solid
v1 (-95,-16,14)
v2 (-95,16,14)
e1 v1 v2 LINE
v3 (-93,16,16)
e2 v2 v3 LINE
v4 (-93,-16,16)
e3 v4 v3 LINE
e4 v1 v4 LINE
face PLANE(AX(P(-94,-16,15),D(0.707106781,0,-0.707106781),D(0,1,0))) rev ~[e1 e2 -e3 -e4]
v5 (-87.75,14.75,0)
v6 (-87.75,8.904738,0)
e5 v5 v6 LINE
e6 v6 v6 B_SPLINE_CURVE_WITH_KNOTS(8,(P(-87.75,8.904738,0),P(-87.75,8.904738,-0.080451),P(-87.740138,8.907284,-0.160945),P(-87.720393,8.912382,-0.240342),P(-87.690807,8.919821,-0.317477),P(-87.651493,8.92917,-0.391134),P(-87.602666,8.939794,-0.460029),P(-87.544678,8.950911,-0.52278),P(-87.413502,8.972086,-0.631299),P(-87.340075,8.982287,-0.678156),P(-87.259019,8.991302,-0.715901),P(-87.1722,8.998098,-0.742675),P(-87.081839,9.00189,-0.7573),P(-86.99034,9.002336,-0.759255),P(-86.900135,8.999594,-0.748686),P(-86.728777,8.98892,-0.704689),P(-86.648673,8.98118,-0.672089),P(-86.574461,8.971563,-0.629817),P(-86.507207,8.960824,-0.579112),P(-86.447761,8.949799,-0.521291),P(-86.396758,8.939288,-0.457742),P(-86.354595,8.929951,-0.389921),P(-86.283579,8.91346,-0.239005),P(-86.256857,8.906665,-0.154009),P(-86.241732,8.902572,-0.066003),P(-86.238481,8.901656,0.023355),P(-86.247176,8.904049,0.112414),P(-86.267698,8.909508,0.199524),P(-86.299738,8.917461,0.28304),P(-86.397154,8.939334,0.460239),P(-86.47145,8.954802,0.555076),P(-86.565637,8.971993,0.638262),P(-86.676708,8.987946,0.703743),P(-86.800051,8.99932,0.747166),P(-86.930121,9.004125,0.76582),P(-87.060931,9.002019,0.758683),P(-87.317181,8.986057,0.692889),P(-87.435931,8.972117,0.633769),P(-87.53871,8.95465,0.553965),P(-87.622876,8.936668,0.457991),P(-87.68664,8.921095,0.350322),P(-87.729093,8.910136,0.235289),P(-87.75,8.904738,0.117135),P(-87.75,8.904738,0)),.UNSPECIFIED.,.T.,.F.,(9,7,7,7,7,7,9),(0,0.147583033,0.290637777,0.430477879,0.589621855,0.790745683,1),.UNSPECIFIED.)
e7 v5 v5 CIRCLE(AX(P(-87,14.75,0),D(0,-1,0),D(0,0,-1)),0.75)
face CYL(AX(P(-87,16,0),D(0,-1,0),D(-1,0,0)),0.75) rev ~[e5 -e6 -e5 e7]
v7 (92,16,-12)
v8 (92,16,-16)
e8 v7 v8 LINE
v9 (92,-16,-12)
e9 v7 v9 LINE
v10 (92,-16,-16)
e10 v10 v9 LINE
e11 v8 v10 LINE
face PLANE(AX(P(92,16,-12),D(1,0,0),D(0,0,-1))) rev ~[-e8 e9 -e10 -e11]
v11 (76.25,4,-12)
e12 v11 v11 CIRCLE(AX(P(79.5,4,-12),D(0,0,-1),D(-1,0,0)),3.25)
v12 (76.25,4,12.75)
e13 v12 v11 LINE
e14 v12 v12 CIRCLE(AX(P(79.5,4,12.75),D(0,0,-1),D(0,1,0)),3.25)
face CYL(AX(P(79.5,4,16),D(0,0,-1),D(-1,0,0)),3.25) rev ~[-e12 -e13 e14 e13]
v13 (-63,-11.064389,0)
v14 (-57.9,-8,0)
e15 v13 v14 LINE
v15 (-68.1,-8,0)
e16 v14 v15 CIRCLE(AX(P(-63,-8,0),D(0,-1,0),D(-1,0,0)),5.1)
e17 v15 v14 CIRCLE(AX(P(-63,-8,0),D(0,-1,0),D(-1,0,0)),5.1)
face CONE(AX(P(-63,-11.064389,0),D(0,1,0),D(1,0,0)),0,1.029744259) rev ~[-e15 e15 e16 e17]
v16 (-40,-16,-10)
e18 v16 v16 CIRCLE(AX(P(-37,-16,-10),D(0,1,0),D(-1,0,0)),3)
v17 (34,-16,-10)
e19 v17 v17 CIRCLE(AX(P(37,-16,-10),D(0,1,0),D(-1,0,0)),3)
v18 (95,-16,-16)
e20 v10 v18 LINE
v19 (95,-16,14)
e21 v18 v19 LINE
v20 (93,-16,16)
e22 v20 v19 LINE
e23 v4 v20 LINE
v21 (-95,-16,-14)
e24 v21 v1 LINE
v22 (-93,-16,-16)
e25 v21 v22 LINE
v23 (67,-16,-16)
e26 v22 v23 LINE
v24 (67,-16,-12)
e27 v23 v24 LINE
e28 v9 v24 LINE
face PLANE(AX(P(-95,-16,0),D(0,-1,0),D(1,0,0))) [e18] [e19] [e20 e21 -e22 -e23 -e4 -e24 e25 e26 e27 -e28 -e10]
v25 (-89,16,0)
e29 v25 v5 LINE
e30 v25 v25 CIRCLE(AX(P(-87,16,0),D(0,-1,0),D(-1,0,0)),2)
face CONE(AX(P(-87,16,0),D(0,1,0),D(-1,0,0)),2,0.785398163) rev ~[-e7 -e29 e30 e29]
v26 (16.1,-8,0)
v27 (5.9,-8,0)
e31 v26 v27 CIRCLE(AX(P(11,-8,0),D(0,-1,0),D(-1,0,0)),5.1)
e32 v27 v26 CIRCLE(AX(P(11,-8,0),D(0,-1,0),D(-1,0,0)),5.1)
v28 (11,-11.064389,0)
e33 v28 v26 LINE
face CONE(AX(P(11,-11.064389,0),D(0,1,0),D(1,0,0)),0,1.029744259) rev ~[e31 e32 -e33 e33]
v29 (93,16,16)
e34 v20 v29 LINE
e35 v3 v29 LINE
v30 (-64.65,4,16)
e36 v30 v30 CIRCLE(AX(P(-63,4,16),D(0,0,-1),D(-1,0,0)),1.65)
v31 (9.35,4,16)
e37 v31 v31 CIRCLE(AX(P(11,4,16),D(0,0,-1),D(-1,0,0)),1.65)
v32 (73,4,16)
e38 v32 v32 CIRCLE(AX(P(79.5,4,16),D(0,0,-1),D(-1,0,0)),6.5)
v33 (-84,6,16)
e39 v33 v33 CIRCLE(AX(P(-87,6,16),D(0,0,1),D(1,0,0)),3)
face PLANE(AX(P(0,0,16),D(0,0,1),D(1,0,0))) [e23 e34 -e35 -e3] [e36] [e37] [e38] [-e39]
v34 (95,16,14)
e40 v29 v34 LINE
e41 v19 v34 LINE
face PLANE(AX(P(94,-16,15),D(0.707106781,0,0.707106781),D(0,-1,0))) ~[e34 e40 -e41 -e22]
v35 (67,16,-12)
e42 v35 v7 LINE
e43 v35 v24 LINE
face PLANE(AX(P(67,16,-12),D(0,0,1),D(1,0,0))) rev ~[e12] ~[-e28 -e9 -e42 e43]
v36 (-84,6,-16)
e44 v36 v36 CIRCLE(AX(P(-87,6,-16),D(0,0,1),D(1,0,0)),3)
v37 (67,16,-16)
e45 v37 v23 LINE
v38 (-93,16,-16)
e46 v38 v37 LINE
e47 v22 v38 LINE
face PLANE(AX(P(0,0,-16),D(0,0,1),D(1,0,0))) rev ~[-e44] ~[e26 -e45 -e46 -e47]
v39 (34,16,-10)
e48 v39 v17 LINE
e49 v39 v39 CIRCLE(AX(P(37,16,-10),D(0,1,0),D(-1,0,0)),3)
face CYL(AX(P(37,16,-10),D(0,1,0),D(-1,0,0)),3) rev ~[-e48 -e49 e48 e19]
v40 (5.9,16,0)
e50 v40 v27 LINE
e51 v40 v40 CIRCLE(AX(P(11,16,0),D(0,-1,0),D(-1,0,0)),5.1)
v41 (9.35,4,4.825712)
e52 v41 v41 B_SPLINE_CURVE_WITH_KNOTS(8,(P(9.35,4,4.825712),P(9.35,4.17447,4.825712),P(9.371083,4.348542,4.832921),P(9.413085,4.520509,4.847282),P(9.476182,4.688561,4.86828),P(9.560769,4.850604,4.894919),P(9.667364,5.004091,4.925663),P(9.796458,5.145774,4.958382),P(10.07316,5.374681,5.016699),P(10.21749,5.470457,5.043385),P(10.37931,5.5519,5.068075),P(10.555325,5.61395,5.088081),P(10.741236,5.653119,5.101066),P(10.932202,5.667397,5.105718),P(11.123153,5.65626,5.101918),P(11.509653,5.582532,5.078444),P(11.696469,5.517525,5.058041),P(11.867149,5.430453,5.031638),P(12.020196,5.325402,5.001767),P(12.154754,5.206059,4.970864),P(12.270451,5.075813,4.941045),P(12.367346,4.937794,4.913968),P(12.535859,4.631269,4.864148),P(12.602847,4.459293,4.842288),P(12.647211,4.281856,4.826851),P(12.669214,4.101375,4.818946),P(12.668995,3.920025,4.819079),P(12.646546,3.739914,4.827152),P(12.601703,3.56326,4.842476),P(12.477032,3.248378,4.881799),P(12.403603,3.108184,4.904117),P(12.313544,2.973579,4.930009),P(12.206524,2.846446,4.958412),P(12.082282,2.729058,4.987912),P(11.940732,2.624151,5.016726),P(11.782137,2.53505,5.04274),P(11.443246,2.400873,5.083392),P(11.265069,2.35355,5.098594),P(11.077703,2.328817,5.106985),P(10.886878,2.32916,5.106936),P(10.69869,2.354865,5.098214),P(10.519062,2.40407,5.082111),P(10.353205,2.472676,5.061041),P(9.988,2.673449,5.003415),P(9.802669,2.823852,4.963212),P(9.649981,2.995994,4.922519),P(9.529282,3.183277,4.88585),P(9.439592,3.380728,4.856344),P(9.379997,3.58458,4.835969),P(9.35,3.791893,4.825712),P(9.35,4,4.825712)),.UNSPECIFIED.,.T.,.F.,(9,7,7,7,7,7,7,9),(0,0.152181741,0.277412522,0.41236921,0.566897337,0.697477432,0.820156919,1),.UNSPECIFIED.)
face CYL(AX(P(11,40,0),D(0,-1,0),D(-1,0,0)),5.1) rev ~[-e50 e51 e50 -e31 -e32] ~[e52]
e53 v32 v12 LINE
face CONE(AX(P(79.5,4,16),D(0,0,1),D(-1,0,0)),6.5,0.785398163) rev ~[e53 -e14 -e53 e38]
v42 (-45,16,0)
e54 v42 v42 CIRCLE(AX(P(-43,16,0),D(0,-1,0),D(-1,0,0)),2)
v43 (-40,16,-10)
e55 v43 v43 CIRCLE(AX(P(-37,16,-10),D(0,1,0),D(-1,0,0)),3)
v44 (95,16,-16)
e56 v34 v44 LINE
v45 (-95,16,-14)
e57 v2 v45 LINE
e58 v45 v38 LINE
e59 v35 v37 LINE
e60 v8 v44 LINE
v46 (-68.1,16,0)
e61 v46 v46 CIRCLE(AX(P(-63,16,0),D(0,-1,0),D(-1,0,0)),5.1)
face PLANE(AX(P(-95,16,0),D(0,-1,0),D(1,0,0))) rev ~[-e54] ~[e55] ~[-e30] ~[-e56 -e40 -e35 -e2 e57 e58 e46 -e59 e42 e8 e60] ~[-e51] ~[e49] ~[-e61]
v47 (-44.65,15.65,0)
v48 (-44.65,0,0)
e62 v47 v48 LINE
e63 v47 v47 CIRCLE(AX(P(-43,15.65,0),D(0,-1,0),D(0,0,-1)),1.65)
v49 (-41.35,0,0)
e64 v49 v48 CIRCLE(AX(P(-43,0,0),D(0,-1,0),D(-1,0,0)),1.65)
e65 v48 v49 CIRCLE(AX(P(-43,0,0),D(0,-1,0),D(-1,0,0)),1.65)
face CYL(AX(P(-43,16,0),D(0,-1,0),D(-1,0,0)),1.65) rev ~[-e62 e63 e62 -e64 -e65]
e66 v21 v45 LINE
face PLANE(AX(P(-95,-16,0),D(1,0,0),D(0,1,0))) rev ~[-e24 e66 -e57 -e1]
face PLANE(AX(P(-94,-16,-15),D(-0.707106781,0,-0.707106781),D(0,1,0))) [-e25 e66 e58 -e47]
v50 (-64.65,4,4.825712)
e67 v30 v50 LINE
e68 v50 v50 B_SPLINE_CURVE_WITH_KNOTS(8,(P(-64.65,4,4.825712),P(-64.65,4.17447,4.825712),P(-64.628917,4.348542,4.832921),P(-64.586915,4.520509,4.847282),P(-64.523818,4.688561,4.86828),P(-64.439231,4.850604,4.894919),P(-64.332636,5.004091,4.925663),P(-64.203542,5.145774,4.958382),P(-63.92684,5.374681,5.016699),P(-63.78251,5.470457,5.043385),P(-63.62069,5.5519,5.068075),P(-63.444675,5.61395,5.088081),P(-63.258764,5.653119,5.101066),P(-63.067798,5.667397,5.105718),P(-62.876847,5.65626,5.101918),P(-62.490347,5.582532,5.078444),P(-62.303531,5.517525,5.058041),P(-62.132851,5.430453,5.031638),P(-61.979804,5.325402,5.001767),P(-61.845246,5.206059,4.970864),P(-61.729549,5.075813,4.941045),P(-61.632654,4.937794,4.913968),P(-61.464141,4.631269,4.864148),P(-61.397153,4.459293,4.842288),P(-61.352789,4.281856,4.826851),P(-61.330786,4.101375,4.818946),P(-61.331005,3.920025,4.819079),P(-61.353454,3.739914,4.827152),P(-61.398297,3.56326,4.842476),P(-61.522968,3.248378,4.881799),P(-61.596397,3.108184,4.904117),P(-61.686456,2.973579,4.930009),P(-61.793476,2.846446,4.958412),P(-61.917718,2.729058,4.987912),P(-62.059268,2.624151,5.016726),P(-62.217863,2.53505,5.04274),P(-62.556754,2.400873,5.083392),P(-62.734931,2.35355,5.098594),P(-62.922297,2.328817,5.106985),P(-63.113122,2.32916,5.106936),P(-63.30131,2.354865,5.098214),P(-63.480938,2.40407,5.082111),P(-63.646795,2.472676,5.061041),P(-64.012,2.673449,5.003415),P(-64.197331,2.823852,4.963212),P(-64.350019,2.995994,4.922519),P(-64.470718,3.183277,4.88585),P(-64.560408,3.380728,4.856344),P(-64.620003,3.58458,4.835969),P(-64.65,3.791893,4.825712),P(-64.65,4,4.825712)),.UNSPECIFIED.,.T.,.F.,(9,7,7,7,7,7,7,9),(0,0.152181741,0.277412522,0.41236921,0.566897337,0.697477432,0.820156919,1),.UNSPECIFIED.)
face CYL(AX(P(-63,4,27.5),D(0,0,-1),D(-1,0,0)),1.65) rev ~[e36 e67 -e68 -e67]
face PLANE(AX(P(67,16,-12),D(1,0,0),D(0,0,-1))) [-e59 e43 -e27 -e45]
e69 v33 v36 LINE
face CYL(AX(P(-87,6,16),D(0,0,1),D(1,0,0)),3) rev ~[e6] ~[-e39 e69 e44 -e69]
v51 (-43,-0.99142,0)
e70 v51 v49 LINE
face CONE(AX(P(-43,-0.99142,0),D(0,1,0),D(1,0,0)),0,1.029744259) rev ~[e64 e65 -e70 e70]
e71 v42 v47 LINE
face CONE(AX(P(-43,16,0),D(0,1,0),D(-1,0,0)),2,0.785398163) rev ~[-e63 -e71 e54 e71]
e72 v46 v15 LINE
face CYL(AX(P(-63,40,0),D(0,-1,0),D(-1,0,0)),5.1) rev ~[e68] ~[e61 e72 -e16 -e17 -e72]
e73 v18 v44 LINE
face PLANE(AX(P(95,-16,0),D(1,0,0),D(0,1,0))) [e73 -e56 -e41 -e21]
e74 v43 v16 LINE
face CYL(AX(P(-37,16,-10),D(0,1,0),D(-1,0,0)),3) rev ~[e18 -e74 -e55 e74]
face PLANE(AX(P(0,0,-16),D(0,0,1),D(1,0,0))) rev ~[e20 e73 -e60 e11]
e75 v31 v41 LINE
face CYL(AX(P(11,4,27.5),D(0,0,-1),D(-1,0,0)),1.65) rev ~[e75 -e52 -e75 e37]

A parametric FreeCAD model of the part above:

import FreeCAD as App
import Part
import Sketcher

V = App.Vector


def edges_at(feature, points):
    """Names of the edges that pass closest to the given points."""
    edges = feature.Shape.Edges
    near = lambda p: min(range(len(edges)), key=lambda i: edges[i].distToShape(Part.Vertex(*p))[0])
    return sorted({f"Edge{near(p) + 1}" for p in points})

doc = App.newDocument("Part")
body = doc.addObject("PartDesign::Body", "Body")

sketch1 = doc.addObject("Sketcher::SketchObject", "Sketch")
body.addObject(sketch1)
sketch1.AttachmentSupport = (doc.XY_Plane, [""])
sketch1.MapMode = "FlatFace"
sketch1.addGeometry([
    Part.LineSegment(V(-95, 16, 0), V(-95, -16, 0)),
    Part.LineSegment(V(-95, -16, 0), V(95, -16, 0)),
    Part.LineSegment(V(95, -16, 0), V(95, 16, 0)),
    Part.LineSegment(V(95, 16, 0), V(-95, 16, 0)),
], False)
sketch1.addConstraint([
    Sketcher.Constraint("Coincident", 0, 2, 1, 1),
    Sketcher.Constraint("Coincident", 1, 2, 2, 1),
    Sketcher.Constraint("Coincident", 2, 2, 3, 1),
    Sketcher.Constraint("Coincident", 3, 2, 0, 1),
    Sketcher.Constraint("Vertical", 0),
    Sketcher.Constraint("Horizontal", 1),
    Sketcher.Constraint("Vertical", 2),
    Sketcher.Constraint("Horizontal", 3),
    Sketcher.Constraint("Symmetric", 0, 2, 2, 2, -1, 1),
    Sketcher.Constraint("DistanceX", 1, 1, 1, 2, 190.0),
    Sketcher.Constraint("DistanceY", 0, 2, 0, 1, 32.0),
])
pad1 = doc.addObject("PartDesign::Pad", "Pad")
body.addObject(pad1)
pad1.Profile = sketch1
pad1.Length = 32
pad1.Midplane = True

sketch2 = doc.addObject("Sketcher::SketchObject", "Sketch001")
body.addObject(sketch2)
sketch2.AttachmentSupport = (doc.XZ_Plane, [""])
sketch2.MapMode = "FlatFace"
sketch2.AttachmentOffset = App.Placement(V(0, 0, -16), App.Rotation())
sketch2.addGeometry([
    Part.LineSegment(V(67, -16, 0), V(67, -12, 0)),
    Part.LineSegment(V(67, -12, 0), V(92, -12, 0)),
    Part.LineSegment(V(92, -12, 0), V(92, -16, 0)),
    Part.LineSegment(V(92, -16, 0), V(67, -16, 0)),
], False)
sketch2.addConstraint([
    Sketcher.Constraint("Coincident", 0, 2, 1, 1),
    Sketcher.Constraint("Coincident", 1, 2, 2, 1),
    Sketcher.Constraint("Coincident", 2, 2, 3, 1),
    Sketcher.Constraint("Coincident", 3, 2, 0, 1),
    Sketcher.Constraint("Vertical", 0),
    Sketcher.Constraint("Horizontal", 1),
    Sketcher.Constraint("Vertical", 2),
    Sketcher.Constraint("Horizontal", 3),
    Sketcher.Constraint("DistanceX", 1, 1, 1, 2, 25.0),
    Sketcher.Constraint("DistanceY", 0, 1, 0, 2, 4.0),
    Sketcher.Constraint("DistanceX", -1, 1, 0, 2, 67.0),
    Sketcher.Constraint("DistanceY", 0, 2, -1, 1, 12.0),
])
pocket1 = doc.addObject("PartDesign::Pocket", "Pocket")
body.addObject(pocket1)
pocket1.Profile = sketch2
pocket1.Type = "ThroughAll"
pocket1.Reversed = True

sketch3 = doc.addObject("Sketcher::SketchObject", "Sketch002")
body.addObject(sketch3)
sketch3.AttachmentSupport = (doc.XZ_Plane, [""])
sketch3.MapMode = "FlatFace"
sketch3.AttachmentOffset = App.Placement(V(0, 0, -16), App.Rotation())
sketch3.addGeometry([
    Part.Circle(V(-63, 0, 0), V(0, 0, 1), 5.1),
    Part.Circle(V(11, 0, 0), V(0, 0, 1), 5.1),
], False)
sketch3.addConstraint([
    Sketcher.Constraint("Equal", 0, 1),
    Sketcher.Constraint("PointOnObject", 0, 3, -1),
    Sketcher.Constraint("PointOnObject", 1, 3, -1),
    Sketcher.Constraint("Diameter", 0, 10.2),
    Sketcher.Constraint("DistanceX", 0, 3, -1, 1, 63.0),
    Sketcher.Constraint("DistanceX", -1, 1, 1, 3, 11.0),
])
doc.recompute()
hole = doc.addObject("PartDesign::Hole", "Hole")
body.addObject(hole)
hole.Profile = sketch3
hole.ThreadType = "None"
hole.Diameter = 10.2
hole.DepthType = "Dimension"
hole.Depth = 24
hole.DrillPoint = "Angled"
hole.DrillPointAngle = 118
hole.Reversed = True

sketch4 = doc.addObject("Sketcher::SketchObject", "Sketch003")
body.addObject(sketch4)
sketch4.AttachmentSupport = (doc.XY_Plane, [""])
sketch4.MapMode = "FlatFace"
sketch4.AttachmentOffset = App.Placement(V(0, 0, 16), App.Rotation())
sketch4.addGeometry([
    Part.Circle(V(-63, 4, 0), V(0, 0, 1), 1.65),
    Part.Circle(V(11, 4, 0), V(0, 0, 1), 1.65),
], False)
sketch4.addConstraint([
    Sketcher.Constraint("Equal", 0, 1),
    Sketcher.Constraint("Horizontal", 0, 3, 1, 3),
    Sketcher.Constraint("Diameter", 0, 3.3),
    Sketcher.Constraint("DistanceX", 0, 3, -1, 1, 63.0),
    Sketcher.Constraint("DistanceY", -1, 1, 0, 3, 4.0),
    Sketcher.Constraint("DistanceX", -1, 1, 1, 3, 11.0),
])
doc.recompute()
hole2 = doc.addObject("PartDesign::Hole", "Hole001")
body.addObject(hole2)
hole2.Profile = sketch4
hole2.ThreadType = "None"
hole2.Diameter = 3.3
hole2.DepthType = "Dimension"
hole2.Depth = 11.5
hole2.DrillPoint = "Angled"
hole2.DrillPointAngle = 118

sketch5 = doc.addObject("Sketcher::SketchObject", "Sketch004")
body.addObject(sketch5)
sketch5.AttachmentSupport = (doc.XY_Plane, [""])
sketch5.MapMode = "FlatFace"
sketch5.AttachmentOffset = App.Placement(V(0, 0, 16), App.Rotation())
sketch5.addGeometry(Part.Circle(V(-87, 6, 0), V(0, 0, 1), 3), False)
sketch5.addConstraint([
    Sketcher.Constraint("Diameter", 0, 6.0),
    Sketcher.Constraint("DistanceX", 0, 3, -1, 1, 87.0),
    Sketcher.Constraint("DistanceY", -1, 1, 0, 3, 6.0),
])
pocket2 = doc.addObject("PartDesign::Pocket", "Pocket001")
body.addObject(pocket2)
pocket2.Profile = sketch5
pocket2.Type = "ThroughAll"

sketch6 = doc.addObject("Sketcher::SketchObject", "Sketch005")
body.addObject(sketch6)
sketch6.AttachmentSupport = (doc.XZ_Plane, [""])
sketch6.MapMode = "FlatFace"
sketch6.AttachmentOffset = App.Placement(V(0, 0, -16), App.Rotation())
sketch6.addGeometry(Part.Circle(V(-87, 0, 0), V(0, 0, 1), 0.75), False)
sketch6.addConstraint([
    Sketcher.Constraint("PointOnObject", 0, 3, -1),
    Sketcher.Constraint("Diameter", 0, 1.5),
    Sketcher.Constraint("DistanceX", 0, 3, -1, 1, 87.0),
])
doc.recompute()
hole3 = doc.addObject("PartDesign::Hole", "Hole002")
body.addObject(hole3)
hole3.Profile = sketch6
hole3.ThreadType = "None"
hole3.Diameter = 1.5
hole3.DepthType = "Dimension"
hole3.Depth = 10
hole3.DrillPoint = "Angled"
hole3.DrillPointAngle = 118
hole3.HoleCutType = "Countersink"
hole3.HoleCutDiameter = 4
hole3.HoleCutCountersinkAngle = 90
hole3.Reversed = True

sketch7 = doc.addObject("Sketcher::SketchObject", "Sketch006")
body.addObject(sketch7)
sketch7.AttachmentSupport = (doc.XZ_Plane, [""])
sketch7.MapMode = "FlatFace"
sketch7.AttachmentOffset = App.Placement(V(0, 0, -16), App.Rotation())
sketch7.addGeometry(Part.Circle(V(-43, 0, 0), V(0, 0, 1), 1.65), False)
sketch7.addConstraint([
    Sketcher.Constraint("PointOnObject", 0, 3, -1),
    Sketcher.Constraint("Diameter", 0, 3.3),
    Sketcher.Constraint("DistanceX", 0, 3, -1, 1, 43.0),
])
doc.recompute()
hole4 = doc.addObject("PartDesign::Hole", "Hole003")
body.addObject(hole4)
hole4.Profile = sketch7
hole4.ThreadType = "None"
hole4.Diameter = 3.3
hole4.DepthType = "Dimension"
hole4.Depth = 16
hole4.DrillPoint = "Angled"
hole4.DrillPointAngle = 118
hole4.HoleCutType = "Countersink"
hole4.HoleCutDiameter = 4
hole4.HoleCutCountersinkAngle = 90
hole4.Reversed = True

sketch8 = doc.addObject("Sketcher::SketchObject", "Sketch007")
body.addObject(sketch8)
sketch8.AttachmentSupport = (doc.XZ_Plane, [""])
sketch8.MapMode = "FlatFace"
sketch8.AttachmentOffset = App.Placement(V(0, 0, -16), App.Rotation())
sketch8.addGeometry([
    Part.Circle(V(-37, -10, 0), V(0, 0, 1), 3),
    Part.Circle(V(37, -10, 0), V(0, 0, 1), 3),
], False)
sketch8.addConstraint([
    Sketcher.Constraint("Equal", 0, 1),
    Sketcher.Constraint("Symmetric", 0, 3, 1, 3, -2),
    Sketcher.Constraint("Diameter", 0, 6.0),
    Sketcher.Constraint("DistanceX", 0, 3, -1, 1, 37.0),
    Sketcher.Constraint("DistanceY", 0, 3, -1, 1, 10.0),
])
pocket3 = doc.addObject("PartDesign::Pocket", "Pocket002")
body.addObject(pocket3)
pocket3.Profile = sketch8
pocket3.Length = 32
pocket3.Reversed = True

sketch9 = doc.addObject("Sketcher::SketchObject", "Sketch008")
body.addObject(sketch9)
sketch9.AttachmentSupport = (doc.XY_Plane, [""])
sketch9.MapMode = "FlatFace"
sketch9.AttachmentOffset = App.Placement(V(0, 0, 16), App.Rotation())
sketch9.addGeometry(Part.Circle(V(79.5, 4, 0), V(0, 0, 1), 3.25), False)
sketch9.addConstraint([
    Sketcher.Constraint("Diameter", 0, 6.5),
    Sketcher.Constraint("DistanceY", -1, 1, 0, 3, 4.0),
    Sketcher.Constraint("DistanceX", -1, 1, 0, 3, 79.5),
])
doc.recompute()
hole5 = doc.addObject("PartDesign::Hole", "Hole004")
body.addObject(hole5)
hole5.Profile = sketch9
hole5.ThreadType = "None"
hole5.Diameter = 6.5
hole5.DepthType = "ThroughAll"
hole5.HoleCutType = "Countersink"
hole5.HoleCutDiameter = 13
hole5.HoleCutCountersinkAngle = 90
doc.recompute()

chamfer = doc.addObject("PartDesign::Chamfer", "Chamfer")
body.addObject(chamfer)
chamfer.Base = (hole5, edges_at(hole5, [(95, 0, 16), (-95, 0, 16), (-95, 0, -16)]))
chamfer.Size = 2

doc.recompute()
